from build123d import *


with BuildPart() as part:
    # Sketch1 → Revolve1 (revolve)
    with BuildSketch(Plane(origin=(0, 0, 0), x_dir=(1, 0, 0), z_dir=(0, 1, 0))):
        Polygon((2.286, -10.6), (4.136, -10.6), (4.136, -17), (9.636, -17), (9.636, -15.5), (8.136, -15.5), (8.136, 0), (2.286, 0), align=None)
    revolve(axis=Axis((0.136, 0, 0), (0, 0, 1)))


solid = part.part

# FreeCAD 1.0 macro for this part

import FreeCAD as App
import Part
import Sketcher
from FreeCAD import Vector

doc = App.newDocument("Part")
body = doc.addObject("PartDesign::Body", "Body")

sketch1 = doc.addObject("Sketcher::SketchObject", "Sketch")
body.addObject(sketch1)
sketch1.AttachmentSupport = (doc.XZ_Plane, [""])
sketch1.MapMode = "FlatFace"
sketch1.addGeometry(Part.LineSegment(Vector(2.3, 10.6, 0), Vector(4.1, 10.6, 0)), False)
sketch1.addGeometry(Part.LineSegment(Vector(4.1, 10.6, 0), Vector(4.1, 17, 0)), False)
sketch1.addGeometry(Part.LineSegment(Vector(4.1, 17, 0), Vector(9.6, 17, 0)), False)
sketch1.addGeometry(Part.LineSegment(Vector(9.6, 17, 0), Vector(9.6, 15.5, 0)), False)
sketch1.addGeometry(Part.LineSegment(Vector(9.6, 15.5, 0), Vector(8.1, 15.5, 0)), False)
sketch1.addGeometry(Part.LineSegment(Vector(8.1, 15.5, 0), Vector(8.1, 0, 0)), False)
sketch1.addGeometry(Part.LineSegment(Vector(8.1, 0, 0), Vector(2.3, 0, 0)), False)
sketch1.addGeometry(Part.LineSegment(Vector(2.3, 0, 0), Vector(2.3, 10.6, 0)), False)
sketch1.addGeometry(Part.LineSegment(Vector(0.1, 0, 0), Vector(0.1, 17, 0)), True)
sketch1.addConstraint(Sketcher.Constraint("Coincident", 0, 2, 1, 1))
sketch1.addConstraint(Sketcher.Constraint("Coincident", 1, 2, 2, 1))
sketch1.addConstraint(Sketcher.Constraint("Coincident", 2, 2, 3, 1))
sketch1.addConstraint(Sketcher.Constraint("Coincident", 3, 2, 4, 1))
sketch1.addConstraint(Sketcher.Constraint("Coincident", 4, 2, 5, 1))
sketch1.addConstraint(Sketcher.Constraint("Coincident", 5, 2, 6, 1))
sketch1.addConstraint(Sketcher.Constraint("Coincident", 6, 2, 7, 1))
sketch1.addConstraint(Sketcher.Constraint("Coincident", 7, 2, 0, 1))
sketch1.addConstraint(Sketcher.Constraint("Horizontal", 0))
sketch1.addConstraint(Sketcher.Constraint("Vertical", 1))
sketch1.addConstraint(Sketcher.Constraint("Horizontal", 2))
sketch1.addConstraint(Sketcher.Constraint("Vertical", 3))
sketch1.addConstraint(Sketcher.Constraint("Horizontal", 4))
sketch1.addConstraint(Sketcher.Constraint("Vertical", 5))
sketch1.addConstraint(Sketcher.Constraint("Horizontal", 6))
sketch1.addConstraint(Sketcher.Constraint("Vertical", 7))
sketch1.addConstraint(Sketcher.Constraint("Vertical", 8))
sketch1.addConstraint(Sketcher.Constraint("PointOnObject", 5, 2, -1))
sketch1.addConstraint(Sketcher.Constraint("PointOnObject", 8, 1, -1))
sketch1.addConstraint(Sketcher.Constraint("Horizontal", 2, 2, 8, 2))
sketch1.addConstraint(Sketcher.Constraint("Equal", 4, 3))
sketch1.addConstraint(Sketcher.Constraint("DistanceY", 8, 1, 8, 2, 17.0))
sketch1.addConstraint(Sketcher.Constraint("DistanceX", 2, 1, 2, 2, 5.5))
sketch1.addConstraint(Sketcher.Constraint("DistanceX", 4, 2, 4, 1, 1.5))
sketch1.addConstraint(Sketcher.Constraint("DistanceY", 1, 1, 1, 2, 6.4))
sketch1.addConstraint(Sketcher.Constraint("DistanceX", 8, 1, 5, 2, 8.0))
sketch1.addConstraint(Sketcher.Constraint("DistanceX", 0, 1, 0, 2, 1.85))
sketch1.addConstraint(Sketcher.Constraint("DistanceX", -1, 1, 0, 2, 4.136))
revolution = doc.addObject("PartDesign::Revolution", "Revolution")
body.addObject(revolution)
revolution.Profile = sketch1
revolution.ReferenceAxis = (sketch1, ["Axis0"])
revolution.Angle = 360

doc.recompute()
